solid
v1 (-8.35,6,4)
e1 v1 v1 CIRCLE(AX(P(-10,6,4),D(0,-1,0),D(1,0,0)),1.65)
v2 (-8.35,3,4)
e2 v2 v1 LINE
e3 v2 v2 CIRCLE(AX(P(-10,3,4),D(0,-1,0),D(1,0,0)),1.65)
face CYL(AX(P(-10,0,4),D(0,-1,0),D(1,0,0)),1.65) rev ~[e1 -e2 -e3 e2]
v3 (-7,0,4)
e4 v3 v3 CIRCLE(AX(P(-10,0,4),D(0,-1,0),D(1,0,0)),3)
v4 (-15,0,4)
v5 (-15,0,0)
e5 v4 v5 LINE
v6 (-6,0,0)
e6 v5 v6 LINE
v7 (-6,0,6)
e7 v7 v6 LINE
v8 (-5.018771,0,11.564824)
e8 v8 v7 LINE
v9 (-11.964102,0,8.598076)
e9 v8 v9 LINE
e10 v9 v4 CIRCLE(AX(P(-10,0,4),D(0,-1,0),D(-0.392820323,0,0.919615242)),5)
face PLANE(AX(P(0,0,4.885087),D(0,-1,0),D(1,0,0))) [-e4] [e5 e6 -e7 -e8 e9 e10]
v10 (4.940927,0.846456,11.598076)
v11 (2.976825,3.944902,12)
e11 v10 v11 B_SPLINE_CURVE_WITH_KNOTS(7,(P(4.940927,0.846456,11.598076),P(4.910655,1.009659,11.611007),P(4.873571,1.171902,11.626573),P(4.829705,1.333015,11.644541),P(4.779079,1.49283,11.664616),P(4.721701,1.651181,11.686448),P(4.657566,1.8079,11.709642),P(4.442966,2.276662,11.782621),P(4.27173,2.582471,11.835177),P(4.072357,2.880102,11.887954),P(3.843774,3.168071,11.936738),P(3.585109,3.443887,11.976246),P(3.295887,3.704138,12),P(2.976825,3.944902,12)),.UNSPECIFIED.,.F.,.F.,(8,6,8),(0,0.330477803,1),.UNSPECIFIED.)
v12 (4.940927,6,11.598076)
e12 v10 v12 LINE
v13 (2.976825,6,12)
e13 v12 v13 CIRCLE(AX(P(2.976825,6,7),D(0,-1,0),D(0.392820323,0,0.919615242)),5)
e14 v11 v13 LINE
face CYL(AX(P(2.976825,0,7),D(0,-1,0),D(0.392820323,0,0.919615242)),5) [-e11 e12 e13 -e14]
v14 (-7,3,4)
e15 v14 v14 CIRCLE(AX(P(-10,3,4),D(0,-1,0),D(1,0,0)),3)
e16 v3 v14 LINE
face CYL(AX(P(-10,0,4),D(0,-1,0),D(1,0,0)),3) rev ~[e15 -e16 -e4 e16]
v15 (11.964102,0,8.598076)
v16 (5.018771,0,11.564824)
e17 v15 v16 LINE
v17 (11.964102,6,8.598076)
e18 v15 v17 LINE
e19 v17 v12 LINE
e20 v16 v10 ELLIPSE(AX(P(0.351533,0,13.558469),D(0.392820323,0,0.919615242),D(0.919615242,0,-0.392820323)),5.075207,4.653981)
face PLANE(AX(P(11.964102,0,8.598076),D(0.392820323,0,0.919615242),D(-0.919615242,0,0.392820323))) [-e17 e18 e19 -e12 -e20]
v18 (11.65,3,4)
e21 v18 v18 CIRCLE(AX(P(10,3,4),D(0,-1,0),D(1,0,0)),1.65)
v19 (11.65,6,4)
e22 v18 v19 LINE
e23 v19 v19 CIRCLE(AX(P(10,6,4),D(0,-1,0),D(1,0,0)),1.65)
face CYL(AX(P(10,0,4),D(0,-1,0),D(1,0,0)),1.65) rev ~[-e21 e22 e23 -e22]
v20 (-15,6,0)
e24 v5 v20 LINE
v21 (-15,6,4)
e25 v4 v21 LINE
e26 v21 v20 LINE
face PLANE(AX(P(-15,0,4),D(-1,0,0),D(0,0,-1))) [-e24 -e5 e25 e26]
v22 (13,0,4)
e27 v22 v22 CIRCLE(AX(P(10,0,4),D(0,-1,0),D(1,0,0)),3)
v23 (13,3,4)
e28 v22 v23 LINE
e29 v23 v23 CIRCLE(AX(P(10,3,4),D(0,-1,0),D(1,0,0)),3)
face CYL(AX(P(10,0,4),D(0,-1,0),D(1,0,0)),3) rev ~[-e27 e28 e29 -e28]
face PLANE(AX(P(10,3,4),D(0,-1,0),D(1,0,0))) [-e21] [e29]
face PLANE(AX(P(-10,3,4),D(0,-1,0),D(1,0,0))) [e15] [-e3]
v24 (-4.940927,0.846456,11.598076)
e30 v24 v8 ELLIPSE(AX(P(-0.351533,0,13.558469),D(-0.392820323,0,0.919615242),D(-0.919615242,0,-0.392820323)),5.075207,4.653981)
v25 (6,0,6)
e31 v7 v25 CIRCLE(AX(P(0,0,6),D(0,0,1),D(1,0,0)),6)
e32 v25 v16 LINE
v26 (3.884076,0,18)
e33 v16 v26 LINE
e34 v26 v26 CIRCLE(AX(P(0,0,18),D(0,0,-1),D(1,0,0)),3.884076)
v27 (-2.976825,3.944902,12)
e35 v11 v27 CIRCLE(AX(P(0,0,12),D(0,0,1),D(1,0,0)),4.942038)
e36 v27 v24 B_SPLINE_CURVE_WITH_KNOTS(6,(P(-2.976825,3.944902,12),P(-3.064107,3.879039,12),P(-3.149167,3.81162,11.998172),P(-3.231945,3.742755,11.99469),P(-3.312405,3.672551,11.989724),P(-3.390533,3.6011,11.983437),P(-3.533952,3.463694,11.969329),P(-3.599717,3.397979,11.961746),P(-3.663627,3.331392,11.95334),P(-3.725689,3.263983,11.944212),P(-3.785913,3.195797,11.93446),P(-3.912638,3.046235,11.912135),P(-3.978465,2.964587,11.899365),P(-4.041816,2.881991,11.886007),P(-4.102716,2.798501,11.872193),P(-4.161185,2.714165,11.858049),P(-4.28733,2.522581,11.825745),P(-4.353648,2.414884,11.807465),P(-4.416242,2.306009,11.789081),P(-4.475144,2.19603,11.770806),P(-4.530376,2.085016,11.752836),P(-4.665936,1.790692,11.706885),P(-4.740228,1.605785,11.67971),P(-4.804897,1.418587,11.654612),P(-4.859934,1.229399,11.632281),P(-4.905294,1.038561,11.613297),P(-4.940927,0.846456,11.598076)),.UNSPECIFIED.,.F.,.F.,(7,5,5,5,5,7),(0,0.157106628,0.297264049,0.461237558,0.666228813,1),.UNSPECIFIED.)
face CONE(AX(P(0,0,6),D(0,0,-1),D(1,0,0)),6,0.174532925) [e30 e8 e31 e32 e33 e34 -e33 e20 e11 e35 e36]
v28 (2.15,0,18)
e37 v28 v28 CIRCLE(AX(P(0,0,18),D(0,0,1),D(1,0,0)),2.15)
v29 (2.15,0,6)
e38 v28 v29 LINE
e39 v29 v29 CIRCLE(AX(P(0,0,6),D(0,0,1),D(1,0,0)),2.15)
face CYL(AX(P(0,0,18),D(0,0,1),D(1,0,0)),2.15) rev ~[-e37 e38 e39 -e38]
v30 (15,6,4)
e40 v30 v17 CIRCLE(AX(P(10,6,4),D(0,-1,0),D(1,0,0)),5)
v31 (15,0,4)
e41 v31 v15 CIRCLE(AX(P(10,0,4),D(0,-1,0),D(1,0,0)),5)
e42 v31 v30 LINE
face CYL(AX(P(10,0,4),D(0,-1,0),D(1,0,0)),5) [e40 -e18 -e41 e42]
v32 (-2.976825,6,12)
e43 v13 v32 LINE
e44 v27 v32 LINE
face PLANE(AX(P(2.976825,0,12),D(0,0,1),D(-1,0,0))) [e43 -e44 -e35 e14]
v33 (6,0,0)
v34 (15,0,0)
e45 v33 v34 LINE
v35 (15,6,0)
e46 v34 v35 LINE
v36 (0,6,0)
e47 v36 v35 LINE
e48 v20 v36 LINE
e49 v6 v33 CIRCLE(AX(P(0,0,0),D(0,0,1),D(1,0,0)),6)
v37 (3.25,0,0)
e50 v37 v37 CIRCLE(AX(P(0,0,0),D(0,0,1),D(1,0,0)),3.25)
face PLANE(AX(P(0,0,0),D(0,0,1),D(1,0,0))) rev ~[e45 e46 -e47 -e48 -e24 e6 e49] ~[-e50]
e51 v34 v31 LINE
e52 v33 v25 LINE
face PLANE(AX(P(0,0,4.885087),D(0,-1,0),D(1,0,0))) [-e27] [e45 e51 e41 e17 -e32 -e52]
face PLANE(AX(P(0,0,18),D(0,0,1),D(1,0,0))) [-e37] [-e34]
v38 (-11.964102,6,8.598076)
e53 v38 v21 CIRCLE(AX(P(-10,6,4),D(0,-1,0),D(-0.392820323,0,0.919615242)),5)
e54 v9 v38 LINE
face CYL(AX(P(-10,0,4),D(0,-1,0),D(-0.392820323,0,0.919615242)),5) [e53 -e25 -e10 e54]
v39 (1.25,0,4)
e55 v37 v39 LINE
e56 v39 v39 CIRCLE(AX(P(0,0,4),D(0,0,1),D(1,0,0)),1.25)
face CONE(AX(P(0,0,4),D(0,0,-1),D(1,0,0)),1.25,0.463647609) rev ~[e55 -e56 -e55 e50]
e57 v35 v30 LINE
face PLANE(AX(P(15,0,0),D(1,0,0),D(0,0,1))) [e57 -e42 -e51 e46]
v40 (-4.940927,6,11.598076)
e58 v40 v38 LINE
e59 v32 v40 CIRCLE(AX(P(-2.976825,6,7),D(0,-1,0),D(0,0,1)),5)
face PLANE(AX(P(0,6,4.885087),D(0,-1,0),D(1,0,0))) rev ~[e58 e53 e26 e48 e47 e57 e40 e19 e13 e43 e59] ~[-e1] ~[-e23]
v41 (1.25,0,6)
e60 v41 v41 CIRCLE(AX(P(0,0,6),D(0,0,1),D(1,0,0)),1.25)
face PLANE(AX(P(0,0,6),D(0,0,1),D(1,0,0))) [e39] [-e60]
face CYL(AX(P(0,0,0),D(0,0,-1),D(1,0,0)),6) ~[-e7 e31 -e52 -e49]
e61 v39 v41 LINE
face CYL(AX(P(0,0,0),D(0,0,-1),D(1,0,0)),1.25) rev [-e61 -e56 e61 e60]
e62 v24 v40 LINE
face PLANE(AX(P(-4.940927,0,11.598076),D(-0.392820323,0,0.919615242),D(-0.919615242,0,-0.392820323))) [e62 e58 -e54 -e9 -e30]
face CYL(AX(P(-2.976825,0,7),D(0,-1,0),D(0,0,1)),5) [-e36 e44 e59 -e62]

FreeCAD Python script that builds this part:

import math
import FreeCAD as App
import Part
import Sketcher


def edges_at(feature, points):
    """Names of the edges that pass closest to the given points."""
    edges = feature.Shape.Edges
    near = lambda p: min(range(len(edges)), key=lambda i: edges[i].distToShape(Part.Vertex(*p))[0])
    return sorted({f"Edge{near(p) + 1}" for p in points})

doc = App.newDocument("Part")
body = doc.addObject("PartDesign::Body", "Body")

sketch1 = body.newObject("Sketcher::SketchObject", "Sketch")
sketch1.AttachmentSupport = (doc.getObject("XZ_Plane"), [""])
sketch1.MapMode = "FlatFace"
sketch1.addGeometry([
    Part.LineSegment(App.Vector(15, 0, 0), App.Vector(15, 4, 0)),
    Part.ArcOfCircle(Part.Circle(App.Vector(10, 4, 0), App.Vector(0, 0, 1), 5), math.radians(0), math.radians(67)),
    Part.LineSegment(App.Vector(12, 8.6, 0), App.Vector(4.9, 11.6, 0)),
    Part.ArcOfCircle(Part.Circle(App.Vector(3, 7, 0), App.Vector(0, 0, 1), 5), math.radians(67), math.radians(90)),
    Part.LineSegment(App.Vector(3, 12, 0), App.Vector(-3, 12, 0)),
    Part.ArcOfCircle(Part.Circle(App.Vector(-3, 7, 0), App.Vector(0, 0, 1), 5), math.radians(90), math.radians(113)),
    Part.LineSegment(App.Vector(-4.9, 11.6, 0), App.Vector(-12, 8.6, 0)),
    Part.ArcOfCircle(Part.Circle(App.Vector(-10, 4, 0), App.Vector(0, 0, 1), 5), math.radians(113), math.radians(180)),
    Part.LineSegment(App.Vector(-15, 4, 0), App.Vector(-15, 0, 0)),
    Part.LineSegment(App.Vector(-15, 0, 0), App.Vector(15, 0, 0)),
    Part.Circle(App.Vector(-10, 4, 0), App.Vector(0, 0, 1), 1.6),
    Part.Circle(App.Vector(10, 4, 0), App.Vector(0, 0, 1), 1.6),
], False)
sketch1.addConstraint([
    Sketcher.Constraint("Tangent", 0, 2, 1, 1),
    Sketcher.Constraint("Tangent", 1, 2, 2, 1),
    Sketcher.Constraint("Tangent", 2, 2, 3, 1),
    Sketcher.Constraint("Tangent", 3, 2, 4, 1),
    Sketcher.Constraint("Tangent", 4, 2, 5, 1),
    Sketcher.Constraint("Tangent", 5, 2, 6, 1),
    Sketcher.Constraint("Tangent", 6, 2, 7, 1),
    Sketcher.Constraint("Tangent", 7, 2, 8, 1),
    Sketcher.Constraint("Coincident", 8, 2, 9, 1),
    Sketcher.Constraint("Coincident", 9, 2, 0, 1),
    Sketcher.Constraint("Vertical", 0),
    Sketcher.Constraint("Horizontal", 4),
    Sketcher.Constraint("Vertical", 8),
    Sketcher.Constraint("Horizontal", 9),
    Sketcher.Constraint("Coincident", 10, 3, 7, 3),
    Sketcher.Constraint("Coincident", 11, 3, 1, 3),
    Sketcher.Constraint("Equal", 1, 3),
    Sketcher.Constraint("Equal", 3, 5),
    Sketcher.Constraint("Equal", 5, 7),
    Sketcher.Constraint("Equal", 10, 11),
    Sketcher.Constraint("Symmetric", 8, 2, 9, 2, -1, 1),
    Sketcher.Constraint("Symmetric", 2, 2, 5, 2, -2),
    Sketcher.Constraint("Radius", 1, 5.0),
    Sketcher.Constraint("Diameter", 10, 3.3),
    Sketcher.Constraint("DistanceX", 9, 1, 9, 2, 30.0),
    Sketcher.Constraint("DistanceY", 0, 1, 0, 2, 4.0),
    Sketcher.Constraint("DistanceY", -1, 1, 3, 3, 7.0),
    Sketcher.Constraint("DistanceX", 4, 2, 4, 1, 5.953651),
])
pad1 = body.newObject("PartDesign::Pad", "Pad")
pad1.Profile = sketch1
pad1.Length = 6
pad1.Reversed = True

sketch2 = body.newObject("Sketcher::SketchObject", "Sketch001")
sketch2.AttachmentSupport = (doc.getObject("XY_Plane"), [""])
sketch2.MapMode = "FlatFace"
sketch2.AttachmentOffset = App.Placement(App.Vector(0, 0, 12), App.Rotation())
sketch2.addGeometry(Part.Circle(App.Vector(0, 0, 0), App.Vector(0, 0, 1), 3.8), False)
sketch2.addConstraint([
    Sketcher.Constraint("Coincident", 0, 3, -1, 1),
    Sketcher.Constraint("Diameter", 0, 7.5),
])
pocket1 = body.newObject("PartDesign::Pocket", "Pocket")
pocket1.Profile = sketch2
pocket1.Type = "ThroughAll"
body2 = doc.addObject("PartDesign::Body", "Body001")

sketch3 = body2.newObject("Sketcher::SketchObject", "Sketch002")
sketch3.AttachmentSupport = (doc.getObject("XY_Plane001"), [""])
sketch3.MapMode = "FlatFace"
sketch3.addGeometry([
    Part.Circle(App.Vector(0, 0, 0), App.Vector(0, 0, 1), 6),
    Part.Circle(App.Vector(0, 0, 0), App.Vector(0, 0, 1), 1.2),
], False)
sketch3.addConstraint([
    Sketcher.Constraint("Coincident", 0, 3, -1, 1),
    Sketcher.Constraint("Coincident", 1, 3, -1, 1),
    Sketcher.Constraint("Diameter", 0, 12.0),
    Sketcher.Constraint("Diameter", 1, 2.5),
])
pad2 = body2.newObject("PartDesign::Pad", "Pad001")
pad2.Profile = sketch3
pad2.Length = 6
doc.recompute()

chamfer = body2.newObject("PartDesign::Chamfer", "Chamfer")
chamfer.Base = (pad2, edges_at(pad2, [(-1.25, 0, 0)]))
chamfer.ChamferType = "Two distances"
chamfer.Size = 2
chamfer.Size2 = 4
chamfer.FlipDirection = True
doc.recompute()

boolean = body.newObject("PartDesign::Boolean", "Boolean")
boolean.Type = "Fuse"
boolean.addObjects([body2])

sketch4 = body.newObject("Sketcher::SketchObject", "Sketch003")
sketch4.AttachmentSupport = (doc.getObject("XY_Plane"), [""])
sketch4.MapMode = "FlatFace"
sketch4.AttachmentOffset = App.Placement(App.Vector(0, 0, 6), App.Rotation())
sketch4.addGeometry(Part.Circle(App.Vector(0, 0, 0), App.Vector(0, 0, 1), 6), False)
sketch4.addConstraint([
    Sketcher.Constraint("Coincident", 0, 3, -1, 1),
    Sketcher.Constraint("Diameter", 0, 12.0),
])
pad3 = body.newObject("PartDesign::Pad", "Pad002")
pad3.Profile = sketch4
pad3.Length = 12
pad3.TaperAngle = -10

sketch5 = body.newObject("Sketcher::SketchObject", "Sketch004")
sketch5.AttachmentSupport = (doc.getObject("XY_Plane"), [""])
sketch5.MapMode = "FlatFace"
sketch5.AttachmentOffset = App.Placement(App.Vector(0, 0, 18), App.Rotation())
sketch5.addGeometry(Part.Circle(App.Vector(0, 0, 0), App.Vector(0, 0, 1), 2.1), False)
sketch5.addConstraint([
    Sketcher.Constraint("Coincident", 0, 3, -1, 1),
    Sketcher.Constraint("Diameter", 0, 4.3),
])
pocket2 = body.newObject("PartDesign::Pocket", "Pocket001")
pocket2.Profile = sketch5
pocket2.Length = 12

sketch6 = body.newObject("Sketcher::SketchObject", "Sketch005")
sketch6.AttachmentSupport = (doc.getObject("XZ_Plane"), [""])
sketch6.MapMode = "FlatFace"
sketch6.addGeometry(Part.Circle(App.Vector(-10, 4, 0), App.Vector(0, 0, 1), 3), False)
sketch6.addConstraint([
    Sketcher.Constraint("Diameter", 0, 6.0),
    Sketcher.Constraint("DistanceX", 0, 3, -1, 1, 10.0),
    Sketcher.Constraint("DistanceY", -1, 1, 0, 3, 4.0),
])
pocket3 = body.newObject("PartDesign::Pocket", "Pocket002")
pocket3.Profile = sketch6
pocket3.Length = 3

sketch7 = body.newObject("Sketcher::SketchObject", "Sketch006")
sketch7.AttachmentSupport = (doc.getObject("XZ_Plane"), [""])
sketch7.MapMode = "FlatFace"
sketch7.addGeometry(Part.Circle(App.Vector(10, 4, 0), App.Vector(0, 0, 1), 3), False)
sketch7.addConstraint([
    Sketcher.Constraint("Diameter", 0, 6.0),
    Sketcher.Constraint("DistanceX", -1, 1, 0, 3, 10.0),
    Sketcher.Constraint("DistanceY", -1, 1, 0, 3, 4.0),
])
pocket4 = body.newObject("PartDesign::Pocket", "Pocket003")
pocket4.Profile = sketch7
pocket4.Length = 3

doc.recompute()
